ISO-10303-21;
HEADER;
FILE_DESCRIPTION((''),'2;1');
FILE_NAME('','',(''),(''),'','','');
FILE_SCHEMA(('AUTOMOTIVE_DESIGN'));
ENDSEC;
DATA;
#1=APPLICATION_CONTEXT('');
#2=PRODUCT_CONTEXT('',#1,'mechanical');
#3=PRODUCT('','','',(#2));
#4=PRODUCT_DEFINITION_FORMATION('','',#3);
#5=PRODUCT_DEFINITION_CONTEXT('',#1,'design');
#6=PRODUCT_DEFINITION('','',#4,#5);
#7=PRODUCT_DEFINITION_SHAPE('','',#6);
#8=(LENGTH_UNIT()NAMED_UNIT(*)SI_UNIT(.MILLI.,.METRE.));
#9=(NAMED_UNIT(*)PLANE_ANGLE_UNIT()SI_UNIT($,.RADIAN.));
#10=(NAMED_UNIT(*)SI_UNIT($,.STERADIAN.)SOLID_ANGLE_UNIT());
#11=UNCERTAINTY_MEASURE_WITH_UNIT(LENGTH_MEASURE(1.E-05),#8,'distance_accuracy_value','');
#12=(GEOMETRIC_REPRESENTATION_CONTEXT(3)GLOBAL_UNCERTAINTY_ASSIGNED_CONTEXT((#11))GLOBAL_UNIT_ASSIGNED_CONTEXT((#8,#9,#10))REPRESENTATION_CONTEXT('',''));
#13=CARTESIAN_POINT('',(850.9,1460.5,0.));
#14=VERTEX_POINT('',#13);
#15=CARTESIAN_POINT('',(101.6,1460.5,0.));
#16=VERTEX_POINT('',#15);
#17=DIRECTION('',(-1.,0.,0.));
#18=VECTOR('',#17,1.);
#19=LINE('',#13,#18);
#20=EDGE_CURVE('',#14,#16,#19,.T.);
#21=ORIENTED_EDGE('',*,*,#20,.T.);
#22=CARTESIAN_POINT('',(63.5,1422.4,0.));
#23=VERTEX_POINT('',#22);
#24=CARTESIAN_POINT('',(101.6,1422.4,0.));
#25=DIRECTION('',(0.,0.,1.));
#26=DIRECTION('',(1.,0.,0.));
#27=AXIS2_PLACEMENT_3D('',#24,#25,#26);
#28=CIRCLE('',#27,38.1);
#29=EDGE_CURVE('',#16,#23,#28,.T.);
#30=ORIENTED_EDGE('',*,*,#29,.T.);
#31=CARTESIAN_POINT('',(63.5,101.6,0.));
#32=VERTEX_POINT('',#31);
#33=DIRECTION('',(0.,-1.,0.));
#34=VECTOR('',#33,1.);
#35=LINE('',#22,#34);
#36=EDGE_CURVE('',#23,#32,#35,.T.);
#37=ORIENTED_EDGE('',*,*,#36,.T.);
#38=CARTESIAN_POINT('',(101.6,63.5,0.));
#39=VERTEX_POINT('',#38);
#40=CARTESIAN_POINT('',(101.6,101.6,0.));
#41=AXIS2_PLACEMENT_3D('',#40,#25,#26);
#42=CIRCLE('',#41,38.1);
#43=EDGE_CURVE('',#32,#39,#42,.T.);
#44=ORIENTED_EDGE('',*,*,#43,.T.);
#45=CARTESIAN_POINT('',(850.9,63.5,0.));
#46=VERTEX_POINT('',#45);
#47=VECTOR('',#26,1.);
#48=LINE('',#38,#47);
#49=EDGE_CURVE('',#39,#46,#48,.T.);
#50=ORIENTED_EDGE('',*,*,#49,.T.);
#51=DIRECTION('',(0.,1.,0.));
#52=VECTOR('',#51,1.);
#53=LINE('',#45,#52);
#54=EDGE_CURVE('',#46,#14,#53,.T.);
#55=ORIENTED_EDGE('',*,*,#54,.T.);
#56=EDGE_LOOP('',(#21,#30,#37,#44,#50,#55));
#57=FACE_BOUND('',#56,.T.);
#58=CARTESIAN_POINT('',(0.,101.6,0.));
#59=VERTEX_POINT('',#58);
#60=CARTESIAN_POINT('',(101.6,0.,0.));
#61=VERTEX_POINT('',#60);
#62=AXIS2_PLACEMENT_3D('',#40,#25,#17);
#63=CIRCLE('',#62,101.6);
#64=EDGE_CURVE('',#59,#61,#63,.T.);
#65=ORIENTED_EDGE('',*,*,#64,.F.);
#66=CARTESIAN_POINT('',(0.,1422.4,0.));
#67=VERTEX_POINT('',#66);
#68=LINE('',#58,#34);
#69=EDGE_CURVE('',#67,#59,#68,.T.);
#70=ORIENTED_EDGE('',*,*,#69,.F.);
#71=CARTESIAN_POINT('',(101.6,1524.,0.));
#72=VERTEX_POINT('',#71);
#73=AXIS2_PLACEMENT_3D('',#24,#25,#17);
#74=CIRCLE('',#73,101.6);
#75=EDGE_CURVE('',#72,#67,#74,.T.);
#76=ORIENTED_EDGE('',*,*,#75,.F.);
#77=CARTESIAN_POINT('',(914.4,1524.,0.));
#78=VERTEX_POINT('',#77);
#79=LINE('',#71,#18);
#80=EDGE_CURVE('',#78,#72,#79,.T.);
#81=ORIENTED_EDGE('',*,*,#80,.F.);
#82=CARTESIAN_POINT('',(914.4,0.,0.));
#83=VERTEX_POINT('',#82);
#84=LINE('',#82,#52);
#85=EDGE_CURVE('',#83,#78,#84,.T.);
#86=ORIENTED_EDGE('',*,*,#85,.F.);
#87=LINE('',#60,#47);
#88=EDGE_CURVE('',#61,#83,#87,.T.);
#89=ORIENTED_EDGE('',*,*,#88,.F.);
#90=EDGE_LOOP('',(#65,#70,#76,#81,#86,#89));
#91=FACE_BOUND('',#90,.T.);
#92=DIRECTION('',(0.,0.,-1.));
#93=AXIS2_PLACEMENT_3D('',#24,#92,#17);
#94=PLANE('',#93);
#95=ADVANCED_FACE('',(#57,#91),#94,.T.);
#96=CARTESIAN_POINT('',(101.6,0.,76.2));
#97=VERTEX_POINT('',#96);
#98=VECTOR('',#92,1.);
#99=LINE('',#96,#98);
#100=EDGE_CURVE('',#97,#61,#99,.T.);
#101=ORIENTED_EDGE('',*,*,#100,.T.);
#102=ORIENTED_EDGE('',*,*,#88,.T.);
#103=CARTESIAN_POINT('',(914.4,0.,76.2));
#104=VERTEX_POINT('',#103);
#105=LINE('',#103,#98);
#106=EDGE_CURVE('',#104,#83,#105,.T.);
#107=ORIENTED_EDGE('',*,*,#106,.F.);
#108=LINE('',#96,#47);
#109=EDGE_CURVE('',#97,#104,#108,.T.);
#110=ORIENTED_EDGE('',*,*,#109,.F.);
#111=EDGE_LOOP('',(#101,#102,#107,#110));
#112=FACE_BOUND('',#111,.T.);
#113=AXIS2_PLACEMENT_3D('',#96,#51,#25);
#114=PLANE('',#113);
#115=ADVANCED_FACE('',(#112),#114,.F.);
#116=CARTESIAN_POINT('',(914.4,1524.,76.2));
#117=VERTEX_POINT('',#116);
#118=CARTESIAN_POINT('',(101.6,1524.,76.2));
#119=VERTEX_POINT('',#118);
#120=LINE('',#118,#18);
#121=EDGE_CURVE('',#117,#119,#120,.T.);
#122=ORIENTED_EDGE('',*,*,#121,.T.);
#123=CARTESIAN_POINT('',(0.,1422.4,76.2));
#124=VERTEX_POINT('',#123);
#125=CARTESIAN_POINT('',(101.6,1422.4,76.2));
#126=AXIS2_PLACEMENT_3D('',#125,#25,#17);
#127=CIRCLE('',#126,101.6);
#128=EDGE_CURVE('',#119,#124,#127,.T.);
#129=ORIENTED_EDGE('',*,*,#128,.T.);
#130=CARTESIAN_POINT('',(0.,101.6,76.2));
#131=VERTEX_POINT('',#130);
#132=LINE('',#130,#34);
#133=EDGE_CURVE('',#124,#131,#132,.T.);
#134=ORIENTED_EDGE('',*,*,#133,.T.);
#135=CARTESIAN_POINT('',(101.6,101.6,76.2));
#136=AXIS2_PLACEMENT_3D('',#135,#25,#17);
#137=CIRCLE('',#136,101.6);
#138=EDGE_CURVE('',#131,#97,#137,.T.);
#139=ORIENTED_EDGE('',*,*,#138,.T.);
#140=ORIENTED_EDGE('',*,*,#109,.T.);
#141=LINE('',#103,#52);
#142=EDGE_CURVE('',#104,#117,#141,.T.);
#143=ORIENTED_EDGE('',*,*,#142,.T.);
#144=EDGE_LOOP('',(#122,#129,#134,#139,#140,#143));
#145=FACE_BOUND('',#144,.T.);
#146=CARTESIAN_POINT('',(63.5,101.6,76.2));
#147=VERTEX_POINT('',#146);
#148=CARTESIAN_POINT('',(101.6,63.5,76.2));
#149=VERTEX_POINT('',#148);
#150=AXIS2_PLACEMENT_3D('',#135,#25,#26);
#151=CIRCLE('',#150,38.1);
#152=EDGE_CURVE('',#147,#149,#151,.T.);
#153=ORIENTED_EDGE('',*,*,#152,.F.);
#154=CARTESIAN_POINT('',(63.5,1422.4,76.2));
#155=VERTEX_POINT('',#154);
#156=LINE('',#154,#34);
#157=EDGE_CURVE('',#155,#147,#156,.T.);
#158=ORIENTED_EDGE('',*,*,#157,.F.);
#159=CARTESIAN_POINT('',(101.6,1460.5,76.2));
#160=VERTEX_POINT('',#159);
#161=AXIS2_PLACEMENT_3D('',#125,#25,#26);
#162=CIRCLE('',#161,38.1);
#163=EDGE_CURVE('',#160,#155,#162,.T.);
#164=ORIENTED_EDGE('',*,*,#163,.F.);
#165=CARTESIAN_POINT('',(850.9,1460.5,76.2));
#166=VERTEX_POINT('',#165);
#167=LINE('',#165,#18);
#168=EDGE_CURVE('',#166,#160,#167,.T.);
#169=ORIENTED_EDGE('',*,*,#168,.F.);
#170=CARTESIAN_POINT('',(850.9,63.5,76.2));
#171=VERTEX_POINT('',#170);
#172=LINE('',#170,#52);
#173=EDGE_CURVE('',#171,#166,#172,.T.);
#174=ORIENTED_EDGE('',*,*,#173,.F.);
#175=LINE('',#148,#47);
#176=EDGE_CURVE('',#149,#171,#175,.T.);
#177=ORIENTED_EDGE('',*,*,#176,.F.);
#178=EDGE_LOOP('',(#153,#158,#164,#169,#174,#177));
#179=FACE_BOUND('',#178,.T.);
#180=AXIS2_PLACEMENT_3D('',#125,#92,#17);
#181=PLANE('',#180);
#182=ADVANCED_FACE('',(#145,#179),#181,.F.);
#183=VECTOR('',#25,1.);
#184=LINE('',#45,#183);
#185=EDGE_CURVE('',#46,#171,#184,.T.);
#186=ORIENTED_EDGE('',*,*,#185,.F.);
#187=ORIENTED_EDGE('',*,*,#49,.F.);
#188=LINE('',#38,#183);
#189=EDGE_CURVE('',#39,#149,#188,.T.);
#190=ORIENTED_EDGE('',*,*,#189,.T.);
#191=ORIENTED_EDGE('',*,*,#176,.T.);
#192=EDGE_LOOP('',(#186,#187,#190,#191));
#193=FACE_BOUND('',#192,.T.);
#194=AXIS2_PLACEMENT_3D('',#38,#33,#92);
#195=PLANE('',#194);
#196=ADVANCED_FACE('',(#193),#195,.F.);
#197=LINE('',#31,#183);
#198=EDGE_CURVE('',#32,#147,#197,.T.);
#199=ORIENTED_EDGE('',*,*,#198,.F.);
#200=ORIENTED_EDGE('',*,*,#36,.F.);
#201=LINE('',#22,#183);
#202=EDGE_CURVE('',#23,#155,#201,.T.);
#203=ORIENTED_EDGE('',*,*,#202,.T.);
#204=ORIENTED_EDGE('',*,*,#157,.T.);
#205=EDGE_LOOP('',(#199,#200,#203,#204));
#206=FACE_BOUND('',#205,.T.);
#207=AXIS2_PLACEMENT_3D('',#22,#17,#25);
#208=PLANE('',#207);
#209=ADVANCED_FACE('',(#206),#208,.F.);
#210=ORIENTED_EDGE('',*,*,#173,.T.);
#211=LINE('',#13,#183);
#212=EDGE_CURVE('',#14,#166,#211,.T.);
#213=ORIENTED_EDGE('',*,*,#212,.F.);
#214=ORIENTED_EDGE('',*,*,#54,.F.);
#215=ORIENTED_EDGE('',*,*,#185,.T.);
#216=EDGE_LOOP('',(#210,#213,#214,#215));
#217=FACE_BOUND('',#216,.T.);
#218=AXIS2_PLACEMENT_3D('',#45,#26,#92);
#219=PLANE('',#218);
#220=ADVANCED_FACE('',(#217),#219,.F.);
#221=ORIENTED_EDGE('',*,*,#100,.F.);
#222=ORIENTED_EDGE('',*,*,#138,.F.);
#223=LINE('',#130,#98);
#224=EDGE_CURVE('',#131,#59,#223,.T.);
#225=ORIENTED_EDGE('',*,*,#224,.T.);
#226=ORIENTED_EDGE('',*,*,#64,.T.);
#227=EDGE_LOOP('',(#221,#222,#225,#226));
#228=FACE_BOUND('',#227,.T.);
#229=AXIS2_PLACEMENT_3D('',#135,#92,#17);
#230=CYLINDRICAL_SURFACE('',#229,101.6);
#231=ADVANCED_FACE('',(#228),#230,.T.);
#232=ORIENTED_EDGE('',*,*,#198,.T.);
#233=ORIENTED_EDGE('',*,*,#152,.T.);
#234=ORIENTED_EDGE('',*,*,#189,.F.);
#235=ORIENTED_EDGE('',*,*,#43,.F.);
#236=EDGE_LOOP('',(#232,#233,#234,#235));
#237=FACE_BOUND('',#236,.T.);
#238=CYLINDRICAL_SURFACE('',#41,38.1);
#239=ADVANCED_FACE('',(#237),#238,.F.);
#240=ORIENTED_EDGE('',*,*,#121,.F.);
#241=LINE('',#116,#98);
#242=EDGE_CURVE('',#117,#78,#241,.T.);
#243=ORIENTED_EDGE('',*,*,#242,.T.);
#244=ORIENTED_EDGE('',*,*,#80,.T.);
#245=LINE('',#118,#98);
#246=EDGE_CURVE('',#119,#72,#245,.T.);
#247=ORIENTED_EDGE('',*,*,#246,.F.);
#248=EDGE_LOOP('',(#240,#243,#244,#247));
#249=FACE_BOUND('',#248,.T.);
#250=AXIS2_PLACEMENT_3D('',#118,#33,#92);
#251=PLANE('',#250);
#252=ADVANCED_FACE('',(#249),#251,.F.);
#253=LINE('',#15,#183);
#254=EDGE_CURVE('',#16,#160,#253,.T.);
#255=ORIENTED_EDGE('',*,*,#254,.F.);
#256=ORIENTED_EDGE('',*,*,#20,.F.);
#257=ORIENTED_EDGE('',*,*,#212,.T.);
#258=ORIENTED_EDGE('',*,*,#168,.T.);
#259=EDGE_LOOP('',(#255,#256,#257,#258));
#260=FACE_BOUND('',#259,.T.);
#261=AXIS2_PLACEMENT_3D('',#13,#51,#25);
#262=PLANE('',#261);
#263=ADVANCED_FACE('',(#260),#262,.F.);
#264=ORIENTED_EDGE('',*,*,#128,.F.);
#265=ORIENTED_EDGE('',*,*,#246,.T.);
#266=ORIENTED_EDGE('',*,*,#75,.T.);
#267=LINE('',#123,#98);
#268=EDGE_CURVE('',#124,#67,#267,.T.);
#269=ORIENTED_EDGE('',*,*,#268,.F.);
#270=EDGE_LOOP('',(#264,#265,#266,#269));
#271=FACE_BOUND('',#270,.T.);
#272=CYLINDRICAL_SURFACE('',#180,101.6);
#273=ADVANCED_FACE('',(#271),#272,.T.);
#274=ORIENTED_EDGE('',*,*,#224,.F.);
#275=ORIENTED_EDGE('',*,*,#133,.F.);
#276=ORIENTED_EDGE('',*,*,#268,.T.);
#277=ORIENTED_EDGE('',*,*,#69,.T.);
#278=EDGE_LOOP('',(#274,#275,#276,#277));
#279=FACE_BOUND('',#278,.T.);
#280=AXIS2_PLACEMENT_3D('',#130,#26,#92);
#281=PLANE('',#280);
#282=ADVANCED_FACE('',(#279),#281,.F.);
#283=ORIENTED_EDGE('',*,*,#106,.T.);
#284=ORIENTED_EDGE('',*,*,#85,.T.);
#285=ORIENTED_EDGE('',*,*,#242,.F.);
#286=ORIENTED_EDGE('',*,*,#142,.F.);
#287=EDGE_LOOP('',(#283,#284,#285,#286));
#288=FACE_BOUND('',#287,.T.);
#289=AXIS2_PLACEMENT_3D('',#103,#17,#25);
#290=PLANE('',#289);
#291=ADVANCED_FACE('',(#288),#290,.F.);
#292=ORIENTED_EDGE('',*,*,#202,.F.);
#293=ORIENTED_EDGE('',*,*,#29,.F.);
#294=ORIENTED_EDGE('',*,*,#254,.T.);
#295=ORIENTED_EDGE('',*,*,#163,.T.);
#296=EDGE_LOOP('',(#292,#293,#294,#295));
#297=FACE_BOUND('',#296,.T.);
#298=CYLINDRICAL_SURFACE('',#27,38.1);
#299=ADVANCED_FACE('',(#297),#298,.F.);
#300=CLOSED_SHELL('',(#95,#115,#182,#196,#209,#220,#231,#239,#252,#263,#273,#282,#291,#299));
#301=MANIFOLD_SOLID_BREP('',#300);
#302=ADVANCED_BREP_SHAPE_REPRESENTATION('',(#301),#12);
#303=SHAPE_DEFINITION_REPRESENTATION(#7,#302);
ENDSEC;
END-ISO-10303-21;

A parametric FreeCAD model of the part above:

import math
import FreeCAD as App
import Part
import Sketcher

V = App.Vector
Q = App.Units.Quantity

doc = App.newDocument("Part")
body = doc.addObject("PartDesign::Body", "Body")

sketch1 = doc.addObject("Sketcher::SketchObject", "Sketch")
body.addObject(sketch1)
sketch1.AttachmentSupport = (doc.XY_Plane, [""])
sketch1.MapMode = "FlatFace"
sketch1.addGeometry([
    Part.LineSegment(V(101.6, 0, 0), V(914.4, 0, 0)),
    Part.LineSegment(V(914.4, 0, 0), V(914.4, 1524, 0)),
    Part.LineSegment(V(914.4, 1524, 0), V(101.6, 1524, 0)),
    Part.ArcOfCircle(Part.Circle(V(101.6, 1422.4, 0), V(0, 0, 1), 101.6), math.radians(90), math.radians(180)),
    Part.LineSegment(V(0, 1422.4, 0), V(0, 101.6, 0)),
    Part.ArcOfCircle(Part.Circle(V(101.6, 101.6, 0), V(0, 0, 1), 101.6), math.radians(180), math.radians(270)),
], False)
sketch1.addConstraint([
    Sketcher.Constraint("Coincident", 0, 2, 1, 1),
    Sketcher.Constraint("Coincident", 1, 2, 2, 1),
    Sketcher.Constraint("Tangent", 2, 2, 3, 1),
    Sketcher.Constraint("Tangent", 3, 2, 4, 1),
    Sketcher.Constraint("Tangent", 4, 2, 5, 1),
    Sketcher.Constraint("Tangent", 5, 2, 0, 1),
    Sketcher.Constraint("Horizontal", 0),
    Sketcher.Constraint("Vertical", 1),
    Sketcher.Constraint("Horizontal", 2),
    Sketcher.Constraint("Vertical", 4),
    Sketcher.Constraint("Equal", 3, 5),
    Sketcher.Constraint("PointOnObject", 0, 2, -1),
    Sketcher.Constraint("PointOnObject", 3, 2, -2),
    Sketcher.Constraint("Radius", 3, Q("4 in")),
    Sketcher.Constraint("DistanceX", 0, 1, 0, 2, Q("32 in")),
    Sketcher.Constraint("DistanceY", 1, 1, 1, 2, Q("60 in")),
])
pad1 = doc.addObject("PartDesign::Pad", "Pad")
body.addObject(pad1)
pad1.Profile = sketch1
pad1.Length = Q("3 in")

sketch2 = doc.addObject("Sketcher::SketchObject", "Sketch001")
body.addObject(sketch2)
sketch2.AttachmentSupport = (doc.XY_Plane, [""])
sketch2.MapMode = "FlatFace"
sketch2.AttachmentOffset = App.Placement(V(0, 0, 3 * 25.4), App.Rotation())
sketch2.addGeometry([
    Part.LineSegment(V(63.5, 1422.4, 0), V(63.5, 101.6, 0)),
    Part.ArcOfCircle(Part.Circle(V(101.6, 101.6, 0), V(0, 0, 1), 38.1), math.radians(-180), math.radians(-90)),
    Part.LineSegment(V(101.6, 63.5, 0), V(850.9, 63.5, 0)),
    Part.LineSegment(V(850.9, 63.5, 0), V(850.9, 1460.5, 0)),
    Part.LineSegment(V(850.9, 1460.5, 0), V(101.6, 1460.5, 0)),
    Part.ArcOfCircle(Part.Circle(V(101.6, 1422.4, 0), V(0, 0, 1), 38.1), math.radians(90), math.radians(180)),
], False)
sketch2.addConstraint([
    Sketcher.Constraint("Tangent", 0, 2, 1, 1),
    Sketcher.Constraint("Tangent", 1, 2, 2, 1),
    Sketcher.Constraint("Coincident", 2, 2, 3, 1),
    Sketcher.Constraint("Coincident", 3, 2, 4, 1),
    Sketcher.Constraint("Tangent", 4, 2, 5, 1),
    Sketcher.Constraint("Tangent", 5, 2, 0, 1),
    Sketcher.Constraint("Vertical", 0),
    Sketcher.Constraint("Horizontal", 2),
    Sketcher.Constraint("Vertical", 3),
    Sketcher.Constraint("Horizontal", 4),
    Sketcher.Constraint("Equal", 1, 5),
    Sketcher.Constraint("Radius", 1, Q("1.5 in")),
    Sketcher.Constraint("DistanceY", 0, 2, 0, 1, Q("52 in")),
    Sketcher.Constraint("DistanceX", 2, 1, 2, 2, Q("29.5 in")),
    Sketcher.Constraint("DistanceX", -1, 1, 1, 3, Q("4 in")),
    Sketcher.Constraint("DistanceY", -1, 1, 1, 3, Q("4 in")),
])
pocket1 = doc.addObject("PartDesign::Pocket", "Pocket")
body.addObject(pocket1)
pocket1.Profile = sketch2
pocket1.Type = "ThroughAll"

doc.recompute()
